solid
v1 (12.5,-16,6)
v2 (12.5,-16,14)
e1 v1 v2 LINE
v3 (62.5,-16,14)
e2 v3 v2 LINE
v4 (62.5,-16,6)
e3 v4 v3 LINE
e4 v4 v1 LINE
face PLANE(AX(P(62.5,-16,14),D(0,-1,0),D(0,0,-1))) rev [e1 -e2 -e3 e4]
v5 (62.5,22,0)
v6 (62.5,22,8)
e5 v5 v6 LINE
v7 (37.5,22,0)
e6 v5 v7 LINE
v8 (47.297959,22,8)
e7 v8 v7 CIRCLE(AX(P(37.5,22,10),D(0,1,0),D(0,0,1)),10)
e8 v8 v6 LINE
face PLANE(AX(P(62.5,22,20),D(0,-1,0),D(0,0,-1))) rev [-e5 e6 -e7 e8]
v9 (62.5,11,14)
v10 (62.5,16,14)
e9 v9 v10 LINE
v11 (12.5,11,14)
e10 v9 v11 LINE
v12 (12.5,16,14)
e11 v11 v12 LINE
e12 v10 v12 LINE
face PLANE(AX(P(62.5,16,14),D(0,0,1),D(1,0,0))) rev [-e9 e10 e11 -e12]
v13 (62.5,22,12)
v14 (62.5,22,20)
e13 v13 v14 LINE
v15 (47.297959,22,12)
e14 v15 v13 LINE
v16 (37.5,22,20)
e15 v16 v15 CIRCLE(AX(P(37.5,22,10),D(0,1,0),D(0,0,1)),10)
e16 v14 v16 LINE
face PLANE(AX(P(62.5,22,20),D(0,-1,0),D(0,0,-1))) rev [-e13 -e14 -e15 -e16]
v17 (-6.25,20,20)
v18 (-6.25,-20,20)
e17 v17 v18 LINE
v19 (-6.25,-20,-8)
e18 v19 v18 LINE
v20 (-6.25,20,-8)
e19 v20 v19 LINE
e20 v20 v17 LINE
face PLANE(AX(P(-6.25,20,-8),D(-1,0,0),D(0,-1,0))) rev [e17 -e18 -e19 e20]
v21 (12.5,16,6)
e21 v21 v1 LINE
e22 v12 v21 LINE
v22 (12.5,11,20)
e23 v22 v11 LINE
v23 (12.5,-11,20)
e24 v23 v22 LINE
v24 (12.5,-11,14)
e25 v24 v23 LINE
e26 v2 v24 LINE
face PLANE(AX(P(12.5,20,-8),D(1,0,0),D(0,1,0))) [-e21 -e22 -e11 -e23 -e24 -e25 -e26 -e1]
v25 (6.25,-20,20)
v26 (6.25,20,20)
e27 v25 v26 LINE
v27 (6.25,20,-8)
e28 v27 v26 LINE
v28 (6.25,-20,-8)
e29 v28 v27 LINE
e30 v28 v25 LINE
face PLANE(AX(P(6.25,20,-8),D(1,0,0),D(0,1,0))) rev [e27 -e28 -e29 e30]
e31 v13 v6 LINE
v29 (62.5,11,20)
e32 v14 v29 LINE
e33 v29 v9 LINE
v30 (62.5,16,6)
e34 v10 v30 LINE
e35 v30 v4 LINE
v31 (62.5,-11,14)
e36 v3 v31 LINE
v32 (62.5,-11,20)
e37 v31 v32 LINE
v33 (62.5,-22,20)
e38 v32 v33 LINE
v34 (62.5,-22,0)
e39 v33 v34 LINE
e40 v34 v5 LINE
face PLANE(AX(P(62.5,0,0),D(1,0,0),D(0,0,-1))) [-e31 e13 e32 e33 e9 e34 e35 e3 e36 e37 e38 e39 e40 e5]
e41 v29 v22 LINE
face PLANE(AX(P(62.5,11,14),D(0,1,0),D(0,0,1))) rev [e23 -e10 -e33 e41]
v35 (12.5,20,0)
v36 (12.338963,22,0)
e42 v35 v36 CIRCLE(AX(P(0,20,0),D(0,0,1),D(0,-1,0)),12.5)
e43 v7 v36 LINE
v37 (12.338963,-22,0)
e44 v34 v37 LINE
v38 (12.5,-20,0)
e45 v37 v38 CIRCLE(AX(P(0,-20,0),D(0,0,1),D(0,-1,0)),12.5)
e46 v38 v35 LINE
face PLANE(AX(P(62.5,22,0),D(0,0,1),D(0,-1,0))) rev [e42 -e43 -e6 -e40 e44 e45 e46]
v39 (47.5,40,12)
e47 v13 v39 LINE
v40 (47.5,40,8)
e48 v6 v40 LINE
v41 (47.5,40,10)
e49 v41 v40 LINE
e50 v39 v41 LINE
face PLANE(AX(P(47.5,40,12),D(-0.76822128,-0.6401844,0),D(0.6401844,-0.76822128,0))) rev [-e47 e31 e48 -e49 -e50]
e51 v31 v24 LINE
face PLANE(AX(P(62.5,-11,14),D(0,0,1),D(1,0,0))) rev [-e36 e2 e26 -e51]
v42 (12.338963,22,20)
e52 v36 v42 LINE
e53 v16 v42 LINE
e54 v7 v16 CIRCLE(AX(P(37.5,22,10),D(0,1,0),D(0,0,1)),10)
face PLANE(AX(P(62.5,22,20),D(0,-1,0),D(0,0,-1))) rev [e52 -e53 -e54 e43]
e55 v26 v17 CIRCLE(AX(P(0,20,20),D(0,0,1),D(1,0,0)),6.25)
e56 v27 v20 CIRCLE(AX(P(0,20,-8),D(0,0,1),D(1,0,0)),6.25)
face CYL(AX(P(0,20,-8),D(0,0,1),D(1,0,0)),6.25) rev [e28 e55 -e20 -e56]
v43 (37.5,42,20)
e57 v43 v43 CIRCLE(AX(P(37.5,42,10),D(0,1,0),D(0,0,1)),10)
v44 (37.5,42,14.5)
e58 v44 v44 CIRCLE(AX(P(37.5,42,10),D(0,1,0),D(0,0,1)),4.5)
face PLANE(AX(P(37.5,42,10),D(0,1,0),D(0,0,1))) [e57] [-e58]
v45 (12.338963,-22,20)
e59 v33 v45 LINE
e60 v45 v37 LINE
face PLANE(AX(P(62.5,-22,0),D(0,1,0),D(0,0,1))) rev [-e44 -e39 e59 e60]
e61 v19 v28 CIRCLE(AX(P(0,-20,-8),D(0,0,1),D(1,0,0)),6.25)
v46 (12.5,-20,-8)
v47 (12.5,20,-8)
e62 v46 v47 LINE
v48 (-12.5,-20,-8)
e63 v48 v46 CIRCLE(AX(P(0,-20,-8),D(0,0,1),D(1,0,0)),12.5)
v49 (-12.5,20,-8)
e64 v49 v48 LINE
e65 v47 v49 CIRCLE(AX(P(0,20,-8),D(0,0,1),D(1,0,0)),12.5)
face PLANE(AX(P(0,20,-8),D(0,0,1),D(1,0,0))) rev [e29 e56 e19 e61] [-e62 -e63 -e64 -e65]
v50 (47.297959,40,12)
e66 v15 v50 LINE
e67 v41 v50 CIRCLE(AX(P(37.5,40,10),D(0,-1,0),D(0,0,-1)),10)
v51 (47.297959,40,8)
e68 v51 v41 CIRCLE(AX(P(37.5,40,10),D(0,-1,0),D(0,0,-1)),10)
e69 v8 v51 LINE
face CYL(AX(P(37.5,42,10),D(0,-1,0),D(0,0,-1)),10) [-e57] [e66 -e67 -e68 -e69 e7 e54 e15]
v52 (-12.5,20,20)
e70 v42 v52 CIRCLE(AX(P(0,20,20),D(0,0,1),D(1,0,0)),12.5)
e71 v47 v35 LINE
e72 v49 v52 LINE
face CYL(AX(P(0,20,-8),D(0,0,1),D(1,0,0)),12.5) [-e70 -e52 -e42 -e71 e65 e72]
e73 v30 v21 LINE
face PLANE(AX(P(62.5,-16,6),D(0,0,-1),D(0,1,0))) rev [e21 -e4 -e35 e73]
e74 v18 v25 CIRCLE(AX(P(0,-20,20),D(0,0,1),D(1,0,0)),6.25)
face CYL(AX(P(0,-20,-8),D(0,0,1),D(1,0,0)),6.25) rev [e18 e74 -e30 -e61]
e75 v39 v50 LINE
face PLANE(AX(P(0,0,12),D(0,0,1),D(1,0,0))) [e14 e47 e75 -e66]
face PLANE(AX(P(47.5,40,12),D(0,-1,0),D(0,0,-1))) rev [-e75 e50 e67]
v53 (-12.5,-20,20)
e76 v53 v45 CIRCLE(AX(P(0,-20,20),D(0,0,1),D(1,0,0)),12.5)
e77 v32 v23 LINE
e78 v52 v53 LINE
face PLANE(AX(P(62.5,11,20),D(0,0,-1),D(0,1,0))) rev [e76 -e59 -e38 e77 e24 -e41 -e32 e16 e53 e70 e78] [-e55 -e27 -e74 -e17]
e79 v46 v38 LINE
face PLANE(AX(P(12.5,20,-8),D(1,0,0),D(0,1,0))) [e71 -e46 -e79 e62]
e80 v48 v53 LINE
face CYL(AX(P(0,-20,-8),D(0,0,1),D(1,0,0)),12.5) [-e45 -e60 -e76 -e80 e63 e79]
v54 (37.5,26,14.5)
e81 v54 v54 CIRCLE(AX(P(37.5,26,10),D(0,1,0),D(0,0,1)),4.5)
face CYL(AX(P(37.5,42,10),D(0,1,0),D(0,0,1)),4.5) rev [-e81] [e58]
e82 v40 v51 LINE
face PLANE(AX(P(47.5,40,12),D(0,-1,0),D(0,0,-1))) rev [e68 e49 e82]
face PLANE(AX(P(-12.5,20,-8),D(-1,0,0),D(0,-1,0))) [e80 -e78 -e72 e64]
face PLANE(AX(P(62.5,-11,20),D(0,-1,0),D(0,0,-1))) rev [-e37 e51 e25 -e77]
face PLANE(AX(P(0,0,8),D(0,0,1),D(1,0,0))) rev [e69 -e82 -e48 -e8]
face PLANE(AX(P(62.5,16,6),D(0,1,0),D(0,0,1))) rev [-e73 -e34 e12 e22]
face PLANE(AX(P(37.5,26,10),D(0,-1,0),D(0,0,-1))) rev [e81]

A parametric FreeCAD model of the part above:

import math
import FreeCAD as App
import Part
import Sketcher
Q = App.Units.Quantity

doc = App.newDocument("Part")
params = doc.addObject("Spreadsheet::Sheet", "Params")
for row, (alias, value) in enumerate([
    ("sketch1_width", "5 mm"),
    ("sketch1_width2", "32 mm"),
    ("sketch1_width3", "11 mm"),
    ("sketch1_height", "8 mm"),
    ("sketch1_height2", "6 mm"),
    ("pad1_length", "62.5 mm"),
    ("sketch2_radius", "12.5 mm"),
    ("sketch2_height", "40 mm"),
    ("pad2_length", "28 mm"),
    ("sketch3_height", "40 mm"),
    ("sketch3_radius", "6.25 mm"),
    ("sketch4_diameter", "20 mm"),
    ("pad3_length", "20 mm"),
    ("sketch5_diameter", "9 mm"),
    ("hole_diameter", "9 mm"),
    ("hole_depth", "16 mm"),
    ("sketch6_width", "1 mm"),
    ("sketch6_width2", "16 mm"),
    ("sketch6_height", "18 mm"),
    ("pad4_length", "4 mm"),
], start=1):
    params.set(f"A{row}", alias)
    params.set(f"B{row}", "=" + value)
    params.setAlias(f"B{row}", alias)

body = doc.addObject("PartDesign::Body", "Body")

# Sketch on YZ plane
sketch1 = body.newObject("Sketcher::SketchObject", "Sketch")
sketch1.AttachmentSupport = (doc.getObject("YZ_Plane"), [""])
sketch1.MapMode = "FlatFace"
sketch1.addGeometry([
    Part.LineSegment(App.Vector(11, 14, 0), App.Vector(16, 14, 0)),  # 0
    Part.LineSegment(App.Vector(16, 14, 0), App.Vector(16, 6, 0)),  # 1
    Part.LineSegment(App.Vector(16, 6, 0), App.Vector(-16, 6, 0)),  # 2
    Part.LineSegment(App.Vector(-16, 6, 0), App.Vector(-16, 14, 0)),  # 3
    Part.LineSegment(App.Vector(-16, 14, 0), App.Vector(-11, 14, 0)),  # 4
    Part.LineSegment(App.Vector(-11, 14, 0), App.Vector(-11, 20, 0)),  # 5
    Part.LineSegment(App.Vector(-11, 20, 0), App.Vector(-22, 20, 0)),  # 6
    Part.LineSegment(App.Vector(-22, 20, 0), App.Vector(-22, 0, 0)),  # 7
    Part.LineSegment(App.Vector(-22, 0, 0), App.Vector(22, 0, 0)),  # 8
    Part.LineSegment(App.Vector(22, 0, 0), App.Vector(22, 20, 0)),  # 9
    Part.LineSegment(App.Vector(22, 20, 0), App.Vector(11, 20, 0)),  # 10
    Part.LineSegment(App.Vector(11, 20, 0), App.Vector(11, 14, 0)),  # 11
], False)
sketch1.addConstraint([
    Sketcher.Constraint("Coincident", 0, 2, 1, 1),
    Sketcher.Constraint("Coincident", 1, 2, 2, 1),
    Sketcher.Constraint("Coincident", 2, 2, 3, 1),
    Sketcher.Constraint("Coincident", 3, 2, 4, 1),
    Sketcher.Constraint("Coincident", 4, 2, 5, 1),
    Sketcher.Constraint("Coincident", 5, 2, 6, 1),
    Sketcher.Constraint("Coincident", 6, 2, 7, 1),
    Sketcher.Constraint("Coincident", 7, 2, 8, 1),
    Sketcher.Constraint("Coincident", 8, 2, 9, 1),
    Sketcher.Constraint("Coincident", 9, 2, 10, 1),
    Sketcher.Constraint("Coincident", 10, 2, 11, 1),
    Sketcher.Constraint("Coincident", 11, 2, 0, 1),
    Sketcher.Constraint("Horizontal", 0),
    Sketcher.Constraint("Vertical", 1),
    Sketcher.Constraint("Horizontal", 2),
    Sketcher.Constraint("Vertical", 3),
    Sketcher.Constraint("Horizontal", 4),
    Sketcher.Constraint("Vertical", 5),
    Sketcher.Constraint("Horizontal", 6),
    Sketcher.Constraint("Vertical", 7),
    Sketcher.Constraint("Horizontal", 8),
    Sketcher.Constraint("Vertical", 9),
    Sketcher.Constraint("Horizontal", 10),
    Sketcher.Constraint("Vertical", 11),
    Sketcher.Constraint("Symmetric", 7, 2, 8, 2, -1, 1),
    Sketcher.Constraint("Symmetric", 0, 2, 3, 2, -2),
    Sketcher.Constraint("Symmetric", 5, 2, 10, 2, -2),
    Sketcher.Constraint("DistanceX", 0, 1, 0, 2, Q("5 mm")),
    Sketcher.Constraint("DistanceX", 2, 2, 2, 1, Q("32 mm")),
    Sketcher.Constraint("DistanceX", 6, 2, 6, 1, Q("11 mm")),
    Sketcher.Constraint("DistanceY", 1, 2, 1, 1, Q("8 mm")),
    Sketcher.Constraint("DistanceY", 5, 1, 5, 2, Q("6 mm")),
    Sketcher.Constraint("DistanceY", 7, 2, 7, 1, Q("20 mm")),
])
sketch1.setExpression("Constraints[27]", "Params.sketch1_width")
sketch1.setExpression("Constraints[28]", "Params.sketch1_width2")
sketch1.setExpression("Constraints[29]", "Params.sketch1_width3")
sketch1.setExpression("Constraints[30]", "Params.sketch1_height")
sketch1.setExpression("Constraints[31]", "Params.sketch1_height2")
pad1 = body.newObject("PartDesign::Pad", "Pad")
pad1.Profile = sketch1
pad1.setExpression("Length", "Params.pad1_length")

# Sketch on XY plane
sketch2 = body.newObject("Sketcher::SketchObject", "Sketch001")
sketch2.AttachmentSupport = (doc.getObject("XY_Plane"), [""])
sketch2.MapMode = "FlatFace"
sketch2.AttachmentOffset = App.Placement(App.Vector(0, 0, 20), App.Rotation())
sketch2.addGeometry([
    Part.LineSegment(App.Vector(12, -20, 0), App.Vector(12, 20, 0)),
    Part.ArcOfCircle(Part.Circle(App.Vector(0, 20, 0), App.Vector(0, 0, 1), 12), math.radians(0), math.radians(180)),
    Part.LineSegment(App.Vector(-12, 20, 0), App.Vector(-12, -20, 0)),
    Part.ArcOfCircle(Part.Circle(App.Vector(0, -20, 0), App.Vector(0, 0, 1), 12), math.radians(180), math.radians(360)),
], False)
sketch2.addConstraint([
    Sketcher.Constraint("Tangent", 0, 2, 1, 1),
    Sketcher.Constraint("Tangent", 1, 2, 2, 1),
    Sketcher.Constraint("Tangent", 2, 2, 3, 1),
    Sketcher.Constraint("Tangent", 3, 2, 0, 1),
    Sketcher.Constraint("Vertical", 0),
    Sketcher.Constraint("Vertical", 2),
    Sketcher.Constraint("Symmetric", 1, 3, 3, 3, -1, 1),
    Sketcher.Constraint("Radius", 1, Q("12.5 mm")),
    Sketcher.Constraint("DistanceY", 0, 1, 0, 2, Q("40 mm")),
])
sketch2.setExpression("Constraints[7]", "Params.sketch2_radius")
sketch2.setExpression("Constraints[8]", "Params.sketch2_height")
pad2 = body.newObject("PartDesign::Pad", "Pad001")
pad2.Profile = sketch2
pad2.setExpression("Length", "Params.pad2_length")
pad2.Reversed = True

# Sketch on XY plane
sketch3 = body.newObject("Sketcher::SketchObject", "Sketch002")
sketch3.AttachmentSupport = (doc.getObject("XY_Plane"), [""])
sketch3.MapMode = "FlatFace"
sketch3.AttachmentOffset = App.Placement(App.Vector(0, 0, 20), App.Rotation())
sketch3.addGeometry([
    Part.LineSegment(App.Vector(6, -20, 0), App.Vector(6, 20, 0)),
    Part.ArcOfCircle(Part.Circle(App.Vector(0, 20, 0), App.Vector(0, 0, 1), 6), math.radians(0), math.radians(180)),
    Part.LineSegment(App.Vector(-6, 20, 0), App.Vector(-6, -20, 0)),
    Part.ArcOfCircle(Part.Circle(App.Vector(0, -20, 0), App.Vector(0, 0, 1), 6), math.radians(180), math.radians(360)),
], False)
sketch3.addConstraint([
    Sketcher.Constraint("Tangent", 0, 2, 1, 1),
    Sketcher.Constraint("Tangent", 1, 2, 2, 1),
    Sketcher.Constraint("Tangent", 2, 2, 3, 1),
    Sketcher.Constraint("Tangent", 3, 2, 0, 1),
    Sketcher.Constraint("Vertical", 0),
    Sketcher.Constraint("Vertical", 2),
    Sketcher.Constraint("Symmetric", 1, 3, 3, 3, -1, 1),
    Sketcher.Constraint("DistanceY", 0, 1, 0, 2, Q("40 mm")),
    Sketcher.Constraint("Radius", 1, Q("6.25 mm")),
])
sketch3.setExpression("Constraints[7]", "Params.sketch3_height")
sketch3.setExpression("Constraints[8]", "Params.sketch3_radius")
pocket1 = body.newObject("PartDesign::Pocket", "Pocket")
pocket1.Profile = sketch3
pocket1.Type = "ThroughAll"

# Sketch on XZ plane
sketch4 = body.newObject("Sketcher::SketchObject", "Sketch003")
sketch4.AttachmentSupport = (doc.getObject("XZ_Plane"), [""])
sketch4.MapMode = "FlatFace"
sketch4.AttachmentOffset = App.Placement(App.Vector(0, 0, -22), App.Rotation())
sketch4.addGeometry(Part.Circle(App.Vector(38, 10, 0), App.Vector(0, 0, 1), 10), False)
sketch4.addConstraint([
    Sketcher.Constraint("Diameter", 0, Q("20 mm")),
    Sketcher.Constraint("DistanceY", -1, 1, 0, 3, Q("10 mm")),
    Sketcher.Constraint("DistanceX", -1, 1, 0, 3, Q("37.5 mm")),
])
sketch4.setExpression("Constraints[0]", "Params.sketch4_diameter")
pad3 = body.newObject("PartDesign::Pad", "Pad002")
pad3.Profile = sketch4
pad3.setExpression("Length", "Params.pad3_length")
pad3.Reversed = True

# Sketch on XZ plane
sketch5 = body.newObject("Sketcher::SketchObject", "Sketch004")
sketch5.AttachmentSupport = (doc.getObject("XZ_Plane"), [""])
sketch5.MapMode = "FlatFace"
sketch5.AttachmentOffset = App.Placement(App.Vector(0, 0, -42), App.Rotation())
sketch5.addGeometry(Part.Circle(App.Vector(37.5, 10, 0), App.Vector(0, 0, 1), 4.5), False)
sketch5.addConstraint([
    Sketcher.Constraint("Diameter", 0, Q("9 mm")),
    Sketcher.Constraint("DistanceY", -1, 1, 0, 3, Q("10 mm")),
    Sketcher.Constraint("DistanceX", -1, 1, 0, 3, Q("37.5 mm")),
])
sketch5.setExpression("Constraints[0]", "Params.sketch5_diameter")
doc.recompute()
hole = body.newObject("PartDesign::Hole", "Hole")
hole.Profile = sketch5
hole.ThreadType = "None"
hole.setExpression("Diameter", "Params.hole_diameter")
hole.DepthType = "Dimension"
hole.setExpression("Depth", "Params.hole_depth")
hole.DrillPoint = "Flat"
hole.Reversed = True

# Sketch on XY plane
sketch6 = body.newObject("Sketcher::SketchObject", "Sketch005")
sketch6.AttachmentSupport = (doc.getObject("XY_Plane"), [""])
sketch6.MapMode = "FlatFace"
sketch6.AttachmentOffset = App.Placement(App.Vector(0, 0, 10), App.Rotation())
sketch6.addGeometry([
    Part.LineSegment(App.Vector(62.5, 22, 0), App.Vector(47.5, 40, 0)),
    Part.LineSegment(App.Vector(47.5, 40, 0), App.Vector(46.5, 40, 0)),
    Part.LineSegment(App.Vector(46.5, 40, 0), App.Vector(46.5, 22, 0)),
    Part.LineSegment(App.Vector(46.5, 22, 0), App.Vector(62.5, 22, 0)),
], False)
sketch6.addConstraint([
    Sketcher.Constraint("Coincident", 0, 2, 1, 1),
    Sketcher.Constraint("Coincident", 1, 2, 2, 1),
    Sketcher.Constraint("Coincident", 2, 2, 3, 1),
    Sketcher.Constraint("Coincident", 3, 2, 0, 1),
    Sketcher.Constraint("Horizontal", 1),
    Sketcher.Constraint("Vertical", 2),
    Sketcher.Constraint("Horizontal", 3),
    Sketcher.Constraint("DistanceX", 1, 2, 1, 1, Q("1 mm")),
    Sketcher.Constraint("DistanceX", 3, 1, 3, 2, Q("16 mm")),
    Sketcher.Constraint("DistanceY", 2, 2, 2, 1, Q("18 mm")),
    Sketcher.Constraint("DistanceY", -1, 1, 0, 2, Q("40 mm")),
    Sketcher.Constraint("DistanceX", -1, 1, 0, 2, Q("47.5 mm")),
])
sketch6.setExpression("Constraints[7]", "Params.sketch6_width")
sketch6.setExpression("Constraints[8]", "Params.sketch6_width2")
sketch6.setExpression("Constraints[9]", "Params.sketch6_height")
pad4 = body.newObject("PartDesign::Pad", "Pad003")
pad4.Profile = sketch6
pad4.setExpression("Length", "Params.pad4_length")
pad4.Midplane = True

doc.recompute()
